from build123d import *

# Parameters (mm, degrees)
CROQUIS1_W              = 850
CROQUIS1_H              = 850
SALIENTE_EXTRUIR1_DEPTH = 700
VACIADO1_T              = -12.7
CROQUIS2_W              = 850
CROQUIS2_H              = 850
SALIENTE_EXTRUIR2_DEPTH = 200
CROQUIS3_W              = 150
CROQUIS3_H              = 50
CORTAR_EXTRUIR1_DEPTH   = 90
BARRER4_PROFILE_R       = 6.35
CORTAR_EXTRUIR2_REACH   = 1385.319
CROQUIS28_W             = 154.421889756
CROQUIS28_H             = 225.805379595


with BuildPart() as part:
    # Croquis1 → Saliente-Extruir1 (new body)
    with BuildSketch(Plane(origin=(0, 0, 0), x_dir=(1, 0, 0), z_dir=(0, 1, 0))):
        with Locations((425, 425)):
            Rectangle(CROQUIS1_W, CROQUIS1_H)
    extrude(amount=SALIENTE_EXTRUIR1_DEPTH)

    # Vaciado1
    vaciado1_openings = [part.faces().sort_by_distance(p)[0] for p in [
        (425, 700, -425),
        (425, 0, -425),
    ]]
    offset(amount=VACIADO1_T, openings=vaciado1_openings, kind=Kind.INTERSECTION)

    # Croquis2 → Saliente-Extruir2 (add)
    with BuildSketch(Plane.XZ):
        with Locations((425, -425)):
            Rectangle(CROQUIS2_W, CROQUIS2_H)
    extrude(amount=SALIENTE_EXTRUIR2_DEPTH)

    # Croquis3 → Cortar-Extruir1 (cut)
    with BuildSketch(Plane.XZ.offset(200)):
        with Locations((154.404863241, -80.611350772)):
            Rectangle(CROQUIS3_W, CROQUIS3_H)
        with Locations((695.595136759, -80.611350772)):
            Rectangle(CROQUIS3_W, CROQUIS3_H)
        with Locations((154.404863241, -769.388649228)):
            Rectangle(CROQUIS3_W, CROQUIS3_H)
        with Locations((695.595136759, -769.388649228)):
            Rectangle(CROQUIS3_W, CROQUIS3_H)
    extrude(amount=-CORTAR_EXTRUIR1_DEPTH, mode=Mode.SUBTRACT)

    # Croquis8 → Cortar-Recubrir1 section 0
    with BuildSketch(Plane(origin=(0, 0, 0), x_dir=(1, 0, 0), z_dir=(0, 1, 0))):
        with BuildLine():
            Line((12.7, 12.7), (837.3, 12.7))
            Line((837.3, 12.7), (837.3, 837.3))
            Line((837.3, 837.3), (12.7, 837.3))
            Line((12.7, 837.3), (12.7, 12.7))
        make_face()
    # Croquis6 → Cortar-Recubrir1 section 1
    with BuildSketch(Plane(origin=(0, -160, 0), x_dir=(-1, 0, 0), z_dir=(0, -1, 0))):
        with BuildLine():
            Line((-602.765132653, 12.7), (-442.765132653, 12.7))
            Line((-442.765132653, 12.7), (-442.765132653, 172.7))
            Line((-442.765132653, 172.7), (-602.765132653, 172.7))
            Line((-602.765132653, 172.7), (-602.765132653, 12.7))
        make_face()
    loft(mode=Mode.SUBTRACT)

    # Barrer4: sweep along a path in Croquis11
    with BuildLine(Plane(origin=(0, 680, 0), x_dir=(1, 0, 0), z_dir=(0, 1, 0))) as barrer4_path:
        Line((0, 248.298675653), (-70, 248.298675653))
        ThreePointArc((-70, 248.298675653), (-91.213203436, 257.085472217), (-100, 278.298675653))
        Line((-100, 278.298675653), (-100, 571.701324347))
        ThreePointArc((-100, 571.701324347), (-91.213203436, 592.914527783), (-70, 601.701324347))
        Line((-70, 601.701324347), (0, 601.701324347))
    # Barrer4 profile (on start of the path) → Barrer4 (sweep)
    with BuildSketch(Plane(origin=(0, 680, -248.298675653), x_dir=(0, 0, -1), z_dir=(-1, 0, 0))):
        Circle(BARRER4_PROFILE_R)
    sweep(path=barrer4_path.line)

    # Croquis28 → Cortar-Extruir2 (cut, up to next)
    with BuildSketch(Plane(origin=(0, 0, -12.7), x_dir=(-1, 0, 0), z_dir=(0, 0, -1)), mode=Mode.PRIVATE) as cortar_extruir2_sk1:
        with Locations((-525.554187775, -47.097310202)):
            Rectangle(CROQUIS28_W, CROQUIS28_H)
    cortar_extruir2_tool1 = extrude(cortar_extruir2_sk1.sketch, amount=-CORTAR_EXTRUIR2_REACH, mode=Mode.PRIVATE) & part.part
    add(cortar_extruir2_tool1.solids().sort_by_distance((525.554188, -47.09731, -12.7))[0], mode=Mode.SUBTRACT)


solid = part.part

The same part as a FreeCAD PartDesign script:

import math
import FreeCAD as App
import Part
import Sketcher


def faces_at(feature, points):
    """Names of the faces that lie closest to the given points."""
    faces = feature.Shape.Faces
    near = lambda p: min(range(len(faces)), key=lambda i: faces[i].distToShape(Part.Vertex(*p))[0])
    return sorted({f"Face{near(p) + 1}" for p in points})

doc = App.newDocument("Part")
body = doc.addObject("PartDesign::Body", "Body")

# Sketch on XZ plane
sketch1 = body.newObject("Sketcher::SketchObject", "Sketch")
sketch1.AttachmentSupport = (doc.getObject("XZ_Plane"), [""])
sketch1.MapMode = "FlatFace"
sketch1.addGeometry(Part.LineSegment(App.Vector(0, -850, 0), App.Vector(0, 0, 0)), False)
sketch1.addGeometry(Part.LineSegment(App.Vector(0, 0, 0), App.Vector(850, 0, 0)), False)
sketch1.addGeometry(Part.LineSegment(App.Vector(850, 0, 0), App.Vector(850, -850, 0)), False)
sketch1.addGeometry(Part.LineSegment(App.Vector(850, -850, 0), App.Vector(0, -850, 0)), False)
sketch1.addConstraint(Sketcher.Constraint("Coincident", 0, 2, 1, 1))
sketch1.addConstraint(Sketcher.Constraint("Coincident", 1, 2, 2, 1))
sketch1.addConstraint(Sketcher.Constraint("Coincident", 2, 2, 3, 1))
sketch1.addConstraint(Sketcher.Constraint("Coincident", 3, 2, 0, 1))
sketch1.addConstraint(Sketcher.Constraint("Vertical", 0))
sketch1.addConstraint(Sketcher.Constraint("Horizontal", 1))
sketch1.addConstraint(Sketcher.Constraint("Vertical", 2))
sketch1.addConstraint(Sketcher.Constraint("Horizontal", 3))
sketch1.addConstraint(Sketcher.Constraint("Coincident", 0, 2, -1, 1))
sketch1.addConstraint(Sketcher.Constraint("Equal", 3, 0))
sketch1.addConstraint(Sketcher.Constraint("DistanceX", 1, 1, 1, 2, 850.0))
pad1 = body.newObject("PartDesign::Pad", "Pad")
pad1.Profile = sketch1
pad1.Length = 700
pad1.Reversed = True
doc.recompute()

thickness = body.newObject("PartDesign::Thickness", "Thickness")
thickness.Base = (pad1, faces_at(pad1, [(425, 700, -425), (425, 0, -425)]))
thickness.Value = 12.7
thickness.Reversed = True
thickness.Join = "Intersection"

# Sketch on XZ plane
sketch2 = body.newObject("Sketcher::SketchObject", "Sketch001")
sketch2.AttachmentSupport = (doc.getObject("XZ_Plane"), [""])
sketch2.MapMode = "FlatFace"
sketch2.addGeometry(Part.LineSegment(App.Vector(0, 0, 0), App.Vector(0, -850, 0)), False)
sketch2.addGeometry(Part.LineSegment(App.Vector(0, -850, 0), App.Vector(850, -850, 0)), False)
sketch2.addGeometry(Part.LineSegment(App.Vector(850, -850, 0), App.Vector(850, 0, 0)), False)
sketch2.addGeometry(Part.LineSegment(App.Vector(850, 0, 0), App.Vector(0, 0, 0)), False)
sketch2.addConstraint(Sketcher.Constraint("Coincident", 0, 2, 1, 1))
sketch2.addConstraint(Sketcher.Constraint("Coincident", 1, 2, 2, 1))
sketch2.addConstraint(Sketcher.Constraint("Coincident", 2, 2, 3, 1))
sketch2.addConstraint(Sketcher.Constraint("Coincident", 3, 2, 0, 1))
sketch2.addConstraint(Sketcher.Constraint("Vertical", 0))
sketch2.addConstraint(Sketcher.Constraint("Horizontal", 1))
sketch2.addConstraint(Sketcher.Constraint("Vertical", 2))
sketch2.addConstraint(Sketcher.Constraint("Horizontal", 3))
sketch2.addConstraint(Sketcher.Constraint("Coincident", 3, 2, -1, 1))
sketch2.addConstraint(Sketcher.Constraint("Equal", 3, 0))
sketch2.addConstraint(Sketcher.Constraint("DistanceX", 1, 1, 1, 2, 850.0))
pad2 = body.newObject("PartDesign::Pad", "Pad001")
pad2.Profile = sketch2
pad2.Length = 200

# Sketch on XZ plane
sketch3 = body.newObject("Sketcher::SketchObject", "Sketch002")
sketch3.AttachmentSupport = (doc.getObject("XZ_Plane"), [""])
sketch3.MapMode = "FlatFace"
sketch3.AttachmentOffset = App.Placement(App.Vector(0, 0, 200), App.Rotation())
sketch3.addGeometry(Part.LineSegment(App.Vector(79.404863, -55.611351, 0), App.Vector(79.404863, -105.611351, 0)), False)
sketch3.addGeometry(Part.LineSegment(App.Vector(79.404863, -105.611351, 0), App.Vector(229.404863, -105.611351, 0)), False)
sketch3.addGeometry(Part.LineSegment(App.Vector(229.404863, -105.611351, 0), App.Vector(229.404863, -55.611351, 0)), False)
sketch3.addGeometry(Part.LineSegment(App.Vector(229.404863, -55.611351, 0), App.Vector(79.404863, -55.611351, 0)), False)
sketch3.addGeometry(Part.LineSegment(App.Vector(620.595137, -55.611351, 0), App.Vector(620.595137, -105.611351, 0)), False)
sketch3.addGeometry(Part.LineSegment(App.Vector(620.595137, -105.611351, 0), App.Vector(770.595137, -105.611351, 0)), False)
sketch3.addGeometry(Part.LineSegment(App.Vector(770.595137, -105.611351, 0), App.Vector(770.595137, -55.611351, 0)), False)
sketch3.addGeometry(Part.LineSegment(App.Vector(770.595137, -55.611351, 0), App.Vector(620.595137, -55.611351, 0)), False)
sketch3.addGeometry(Part.LineSegment(App.Vector(79.404863, -744.388649, 0), App.Vector(79.404863, -794.388649, 0)), False)
sketch3.addGeometry(Part.LineSegment(App.Vector(79.404863, -794.388649, 0), App.Vector(229.404863, -794.388649, 0)), False)
sketch3.addGeometry(Part.LineSegment(App.Vector(229.404863, -794.388649, 0), App.Vector(229.404863, -744.388649, 0)), False)
sketch3.addGeometry(Part.LineSegment(App.Vector(229.404863, -744.388649, 0), App.Vector(79.404863, -744.388649, 0)), False)
sketch3.addGeometry(Part.LineSegment(App.Vector(620.595137, -744.388649, 0), App.Vector(620.595137, -794.388649, 0)), False)
sketch3.addGeometry(Part.LineSegment(App.Vector(620.595137, -794.388649, 0), App.Vector(770.595137, -794.388649, 0)), False)
sketch3.addGeometry(Part.LineSegment(App.Vector(770.595137, -794.388649, 0), App.Vector(770.595137, -744.388649, 0)), False)
sketch3.addGeometry(Part.LineSegment(App.Vector(770.595137, -744.388649, 0), App.Vector(620.595137, -744.388649, 0)), False)
sketch3.addConstraint(Sketcher.Constraint("Coincident", 0, 2, 1, 1))
sketch3.addConstraint(Sketcher.Constraint("Coincident", 1, 2, 2, 1))
sketch3.addConstraint(Sketcher.Constraint("Coincident", 2, 2, 3, 1))
sketch3.addConstraint(Sketcher.Constraint("Coincident", 3, 2, 0, 1))
sketch3.addConstraint(Sketcher.Constraint("Coincident", 4, 2, 5, 1))
sketch3.addConstraint(Sketcher.Constraint("Coincident", 5, 2, 6, 1))
sketch3.addConstraint(Sketcher.Constraint("Coincident", 6, 2, 7, 1))
sketch3.addConstraint(Sketcher.Constraint("Coincident", 7, 2, 4, 1))
sketch3.addConstraint(Sketcher.Constraint("Coincident", 8, 2, 9, 1))
sketch3.addConstraint(Sketcher.Constraint("Coincident", 9, 2, 10, 1))
sketch3.addConstraint(Sketcher.Constraint("Coincident", 10, 2, 11, 1))
sketch3.addConstraint(Sketcher.Constraint("Coincident", 11, 2, 8, 1))
sketch3.addConstraint(Sketcher.Constraint("Coincident", 12, 2, 13, 1))
sketch3.addConstraint(Sketcher.Constraint("Coincident", 13, 2, 14, 1))
sketch3.addConstraint(Sketcher.Constraint("Coincident", 14, 2, 15, 1))
sketch3.addConstraint(Sketcher.Constraint("Coincident", 15, 2, 12, 1))
sketch3.addConstraint(Sketcher.Constraint("Vertical", 0))
sketch3.addConstraint(Sketcher.Constraint("Horizontal", 1))
sketch3.addConstraint(Sketcher.Constraint("Vertical", 2))
sketch3.addConstraint(Sketcher.Constraint("Horizontal", 3))
sketch3.addConstraint(Sketcher.Constraint("Vertical", 4))
sketch3.addConstraint(Sketcher.Constraint("Horizontal", 5))
sketch3.addConstraint(Sketcher.Constraint("Vertical", 6))
sketch3.addConstraint(Sketcher.Constraint("Horizontal", 7))
sketch3.addConstraint(Sketcher.Constraint("Vertical", 8))
sketch3.addConstraint(Sketcher.Constraint("Horizontal", 9))
sketch3.addConstraint(Sketcher.Constraint("Vertical", 10))
sketch3.addConstraint(Sketcher.Constraint("Horizontal", 11))
sketch3.addConstraint(Sketcher.Constraint("Vertical", 12))
sketch3.addConstraint(Sketcher.Constraint("Horizontal", 13))
sketch3.addConstraint(Sketcher.Constraint("Vertical", 14))
sketch3.addConstraint(Sketcher.Constraint("Horizontal", 15))
sketch3.addConstraint(Sketcher.Constraint("Horizontal", 1, 2, 4, 2))
sketch3.addConstraint(Sketcher.Constraint("Horizontal", 3, 2, 6, 2))
sketch3.addConstraint(Sketcher.Constraint("Horizontal", 9, 2, 12, 2))
sketch3.addConstraint(Sketcher.Constraint("Horizontal", 11, 2, 14, 2))
sketch3.addConstraint(Sketcher.Constraint("Vertical", 3, 2, 8, 2))
sketch3.addConstraint(Sketcher.Constraint("Vertical", 2, 2, 9, 2))
sketch3.addConstraint(Sketcher.Constraint("Vertical", 7, 2, 12, 2))
sketch3.addConstraint(Sketcher.Constraint("Vertical", 6, 2, 13, 2))
sketch3.addConstraint(Sketcher.Constraint("Equal", 3, 5))
sketch3.addConstraint(Sketcher.Constraint("Equal", 6, 8))
sketch3.addConstraint(Sketcher.Constraint("DistanceX", 1, 1, 1, 2, 150.0))
sketch3.addConstraint(Sketcher.Constraint("DistanceY", 0, 2, 0, 1, 50.0))
sketch3.addConstraint(Sketcher.Constraint("DistanceY", 8, 2, 0, 2, 688.777298))
sketch3.addConstraint(Sketcher.Constraint("DistanceY", 0, 2, -1, 1, 105.611351))
sketch3.addConstraint(Sketcher.Constraint("DistanceX", -1, 1, 0, 2, 79.404863))
sketch3.addConstraint(Sketcher.Constraint("DistanceX", -1, 1, 4, 2, 620.595137))
pocket1 = body.newObject("PartDesign::Pocket", "Pocket")
pocket1.Profile = sketch3
pocket1.Length = 90

# Sketch on XZ plane
sketch4 = body.newObject("Sketcher::SketchObject", "Sketch003")
sketch4.AttachmentSupport = (doc.getObject("XZ_Plane"), [""])
sketch4.MapMode = "FlatFace"
sketch4.addGeometry(Part.LineSegment(App.Vector(12.7, -12.7, 0), App.Vector(837.3, -12.7, 0)), False)
sketch4.addGeometry(Part.LineSegment(App.Vector(837.3, -12.7, 0), App.Vector(837.3, -837.3, 0)), False)
sketch4.addGeometry(Part.LineSegment(App.Vector(837.3, -837.3, 0), App.Vector(12.7, -837.3, 0)), False)
sketch4.addGeometry(Part.LineSegment(App.Vector(12.7, -837.3, 0), App.Vector(12.7, -12.7, 0)), False)
sketch4.addConstraint(Sketcher.Constraint("Coincident", 0, 2, 1, 1))
sketch4.addConstraint(Sketcher.Constraint("Coincident", 1, 2, 2, 1))
sketch4.addConstraint(Sketcher.Constraint("Coincident", 2, 2, 3, 1))
sketch4.addConstraint(Sketcher.Constraint("Coincident", 3, 2, 0, 1))
sketch4.addConstraint(Sketcher.Constraint("Horizontal", 0))
sketch4.addConstraint(Sketcher.Constraint("Vertical", 1))
sketch4.addConstraint(Sketcher.Constraint("Horizontal", 2))
sketch4.addConstraint(Sketcher.Constraint("Vertical", 3))
sketch4.addConstraint(Sketcher.Constraint("Equal", 2, 1))
sketch4.addConstraint(Sketcher.Constraint("DistanceX", 0, 1, 0, 2, 824.6))
sketch4.addConstraint(Sketcher.Constraint("DistanceX", -1, 1, 0, 2, 837.3))
sketch4.addConstraint(Sketcher.Constraint("DistanceY", 0, 2, -1, 1, 12.7))

# Sketch on XZ plane
sketch5 = body.newObject("Sketcher::SketchObject", "Sketch004")
sketch5.AttachmentSupport = (doc.getObject("XZ_Plane"), [""])
sketch5.MapMode = "FlatFace"
sketch5.AttachmentOffset = App.Placement(App.Vector(0, 0, 160), App.Rotation())
sketch5.addGeometry(Part.LineSegment(App.Vector(602.765133, -12.7, 0), App.Vector(442.765133, -12.7, 0)), False)
sketch5.addGeometry(Part.LineSegment(App.Vector(442.765133, -12.7, 0), App.Vector(442.765133, -172.7, 0)), False)
sketch5.addGeometry(Part.LineSegment(App.Vector(442.765133, -172.7, 0), App.Vector(602.765133, -172.7, 0)), False)
sketch5.addGeometry(Part.LineSegment(App.Vector(602.765133, -172.7, 0), App.Vector(602.765133, -12.7, 0)), False)
sketch5.addConstraint(Sketcher.Constraint("Coincident", 0, 2, 1, 1))
sketch5.addConstraint(Sketcher.Constraint("Coincident", 1, 2, 2, 1))
sketch5.addConstraint(Sketcher.Constraint("Coincident", 2, 2, 3, 1))
sketch5.addConstraint(Sketcher.Constraint("Coincident", 3, 2, 0, 1))
sketch5.addConstraint(Sketcher.Constraint("Horizontal", 0))
sketch5.addConstraint(Sketcher.Constraint("Vertical", 1))
sketch5.addConstraint(Sketcher.Constraint("Horizontal", 2))
sketch5.addConstraint(Sketcher.Constraint("Vertical", 3))
sketch5.addConstraint(Sketcher.Constraint("Equal", 2, 1))
sketch5.addConstraint(Sketcher.Constraint("DistanceX", 0, 2, 0, 1, 160.0))
sketch5.addConstraint(Sketcher.Constraint("DistanceY", 0, 2, -1, 1, 12.7))
sketch5.addConstraint(Sketcher.Constraint("DistanceX", -1, 1, 0, 2, 442.765133))

subtractiveloft = body.newObject("PartDesign::SubtractiveLoft", "SubtractiveLoft")
subtractiveloft.Profile = sketch4
subtractiveloft.Sections = [sketch5]

# Sketch on YZ plane
sketch6 = body.newObject("Sketcher::SketchObject", "Sketch005")
sketch6.AttachmentSupport = (doc.getObject("YZ_Plane"), [""])
sketch6.MapMode = "FlatFace"
sketch6.addGeometry(Part.Circle(App.Vector(680, -248.298676, 0), App.Vector(0, 0, 1), 6.35), False)
sketch6.addConstraint(Sketcher.Constraint("Diameter", 0, 12.7))
sketch6.addConstraint(Sketcher.Constraint("DistanceX", -1, 1, 0, 3, 680.0))
sketch6.addConstraint(Sketcher.Constraint("DistanceY", 0, 3, -1, 1, 248.298676))

# Sketch on XZ plane
sketch7 = body.newObject("Sketcher::SketchObject", "Sketch006")
sketch7.AttachmentSupport = (doc.getObject("XZ_Plane"), [""])
sketch7.MapMode = "FlatFace"
sketch7.AttachmentOffset = App.Placement(App.Vector(0, 0, -680), App.Rotation())
sketch7.addGeometry(Part.LineSegment(App.Vector(0, -248.298676, 0), App.Vector(-70, -248.298676, 0)), False)
sketch7.addGeometry(Part.ArcOfCircle(Part.Circle(App.Vector(-70, -278.298676, 0), App.Vector(0, 0, 1), 30), math.radians(90), math.radians(180)), False)
sketch7.addGeometry(Part.LineSegment(App.Vector(-100, -278.298676, 0), App.Vector(-100, -571.701324, 0)), False)
sketch7.addGeometry(Part.ArcOfCircle(Part.Circle(App.Vector(-70, -571.701324, 0), App.Vector(0, 0, 1), 30), math.radians(180), math.radians(270)), False)
sketch7.addGeometry(Part.LineSegment(App.Vector(-70, -601.701324, 0), App.Vector(0, -601.701324, 0)), False)
sketch7.addConstraint(Sketcher.Constraint("Tangent", 0, 2, 1, 1))
sketch7.addConstraint(Sketcher.Constraint("Tangent", 1, 2, 2, 1))
sketch7.addConstraint(Sketcher.Constraint("Tangent", 2, 2, 3, 1))
sketch7.addConstraint(Sketcher.Constraint("Tangent", 3, 2, 4, 1))
sketch7.addConstraint(Sketcher.Constraint("Horizontal", 0))
sketch7.addConstraint(Sketcher.Constraint("Vertical", 2))
sketch7.addConstraint(Sketcher.Constraint("Horizontal", 4))
sketch7.addConstraint(Sketcher.Constraint("Equal", 1, 3))
sketch7.addConstraint(Sketcher.Constraint("PointOnObject", 0, 1, -2))
sketch7.addConstraint(Sketcher.Constraint("PointOnObject", 4, 2, -2))
sketch7.addConstraint(Sketcher.Constraint("Radius", 1, 30.0))
sketch7.addConstraint(Sketcher.Constraint("DistanceX", 0, 2, 0, 1, 70.0))
sketch7.addConstraint(Sketcher.Constraint("DistanceY", 2, 2, 2, 1, 293.402649))
sketch7.addConstraint(Sketcher.Constraint("DistanceY", 1, 3, -1, 1, 278.298676))
doc.recompute()

additivepipe = body.newObject("PartDesign::AdditivePipe", "AdditivePipe")
additivepipe.Profile = sketch6
additivepipe.Spine = (sketch7, ["Edge1", "Edge2", "Edge3", "Edge4", "Edge5"])

# Sketch on XY plane
sketch8 = body.newObject("Sketcher::SketchObject", "Sketch007")
sketch8.AttachmentSupport = (doc.getObject("XY_Plane"), [""])
sketch8.MapMode = "FlatFace"
sketch8.AttachmentOffset = App.Placement(App.Vector(0, 0, -12.7), App.Rotation())
sketch8.addGeometry(Part.LineSegment(App.Vector(602.765133, 65.80538, 0), App.Vector(602.765133, -160, 0)), False)
sketch8.addGeometry(Part.LineSegment(App.Vector(602.765133, -160, 0), App.Vector(448.343243, -160, 0)), False)
sketch8.addGeometry(Part.LineSegment(App.Vector(448.343243, -160, 0), App.Vector(448.343243, 65.80538, 0)), False)
sketch8.addGeometry(Part.LineSegment(App.Vector(448.343243, 65.80538, 0), App.Vector(602.765133, 65.80538, 0)), False)
sketch8.addConstraint(Sketcher.Constraint("Coincident", 0, 2, 1, 1))
sketch8.addConstraint(Sketcher.Constraint("Coincident", 1, 2, 2, 1))
sketch8.addConstraint(Sketcher.Constraint("Coincident", 2, 2, 3, 1))
sketch8.addConstraint(Sketcher.Constraint("Coincident", 3, 2, 0, 1))
sketch8.addConstraint(Sketcher.Constraint("Vertical", 0))
sketch8.addConstraint(Sketcher.Constraint("Horizontal", 1))
sketch8.addConstraint(Sketcher.Constraint("Vertical", 2))
sketch8.addConstraint(Sketcher.Constraint("Horizontal", 3))
sketch8.addConstraint(Sketcher.Constraint("DistanceY", 0, 2, -1, 1, 160.0))
sketch8.addConstraint(Sketcher.Constraint("DistanceX", 1, 2, 1, 1, 154.42189))
sketch8.addConstraint(Sketcher.Constraint("DistanceY", 0, 2, 0, 1, 225.80538))
sketch8.addConstraint(Sketcher.Constraint("DistanceX", -1, 1, 0, 2, 602.765133))
pocket2 = body.newObject("PartDesign::Pocket", "Pocket001")
pocket2.Profile = sketch8
pocket2.Type = "UpToFirst"
pocket2.Reversed = True

doc.recompute()
